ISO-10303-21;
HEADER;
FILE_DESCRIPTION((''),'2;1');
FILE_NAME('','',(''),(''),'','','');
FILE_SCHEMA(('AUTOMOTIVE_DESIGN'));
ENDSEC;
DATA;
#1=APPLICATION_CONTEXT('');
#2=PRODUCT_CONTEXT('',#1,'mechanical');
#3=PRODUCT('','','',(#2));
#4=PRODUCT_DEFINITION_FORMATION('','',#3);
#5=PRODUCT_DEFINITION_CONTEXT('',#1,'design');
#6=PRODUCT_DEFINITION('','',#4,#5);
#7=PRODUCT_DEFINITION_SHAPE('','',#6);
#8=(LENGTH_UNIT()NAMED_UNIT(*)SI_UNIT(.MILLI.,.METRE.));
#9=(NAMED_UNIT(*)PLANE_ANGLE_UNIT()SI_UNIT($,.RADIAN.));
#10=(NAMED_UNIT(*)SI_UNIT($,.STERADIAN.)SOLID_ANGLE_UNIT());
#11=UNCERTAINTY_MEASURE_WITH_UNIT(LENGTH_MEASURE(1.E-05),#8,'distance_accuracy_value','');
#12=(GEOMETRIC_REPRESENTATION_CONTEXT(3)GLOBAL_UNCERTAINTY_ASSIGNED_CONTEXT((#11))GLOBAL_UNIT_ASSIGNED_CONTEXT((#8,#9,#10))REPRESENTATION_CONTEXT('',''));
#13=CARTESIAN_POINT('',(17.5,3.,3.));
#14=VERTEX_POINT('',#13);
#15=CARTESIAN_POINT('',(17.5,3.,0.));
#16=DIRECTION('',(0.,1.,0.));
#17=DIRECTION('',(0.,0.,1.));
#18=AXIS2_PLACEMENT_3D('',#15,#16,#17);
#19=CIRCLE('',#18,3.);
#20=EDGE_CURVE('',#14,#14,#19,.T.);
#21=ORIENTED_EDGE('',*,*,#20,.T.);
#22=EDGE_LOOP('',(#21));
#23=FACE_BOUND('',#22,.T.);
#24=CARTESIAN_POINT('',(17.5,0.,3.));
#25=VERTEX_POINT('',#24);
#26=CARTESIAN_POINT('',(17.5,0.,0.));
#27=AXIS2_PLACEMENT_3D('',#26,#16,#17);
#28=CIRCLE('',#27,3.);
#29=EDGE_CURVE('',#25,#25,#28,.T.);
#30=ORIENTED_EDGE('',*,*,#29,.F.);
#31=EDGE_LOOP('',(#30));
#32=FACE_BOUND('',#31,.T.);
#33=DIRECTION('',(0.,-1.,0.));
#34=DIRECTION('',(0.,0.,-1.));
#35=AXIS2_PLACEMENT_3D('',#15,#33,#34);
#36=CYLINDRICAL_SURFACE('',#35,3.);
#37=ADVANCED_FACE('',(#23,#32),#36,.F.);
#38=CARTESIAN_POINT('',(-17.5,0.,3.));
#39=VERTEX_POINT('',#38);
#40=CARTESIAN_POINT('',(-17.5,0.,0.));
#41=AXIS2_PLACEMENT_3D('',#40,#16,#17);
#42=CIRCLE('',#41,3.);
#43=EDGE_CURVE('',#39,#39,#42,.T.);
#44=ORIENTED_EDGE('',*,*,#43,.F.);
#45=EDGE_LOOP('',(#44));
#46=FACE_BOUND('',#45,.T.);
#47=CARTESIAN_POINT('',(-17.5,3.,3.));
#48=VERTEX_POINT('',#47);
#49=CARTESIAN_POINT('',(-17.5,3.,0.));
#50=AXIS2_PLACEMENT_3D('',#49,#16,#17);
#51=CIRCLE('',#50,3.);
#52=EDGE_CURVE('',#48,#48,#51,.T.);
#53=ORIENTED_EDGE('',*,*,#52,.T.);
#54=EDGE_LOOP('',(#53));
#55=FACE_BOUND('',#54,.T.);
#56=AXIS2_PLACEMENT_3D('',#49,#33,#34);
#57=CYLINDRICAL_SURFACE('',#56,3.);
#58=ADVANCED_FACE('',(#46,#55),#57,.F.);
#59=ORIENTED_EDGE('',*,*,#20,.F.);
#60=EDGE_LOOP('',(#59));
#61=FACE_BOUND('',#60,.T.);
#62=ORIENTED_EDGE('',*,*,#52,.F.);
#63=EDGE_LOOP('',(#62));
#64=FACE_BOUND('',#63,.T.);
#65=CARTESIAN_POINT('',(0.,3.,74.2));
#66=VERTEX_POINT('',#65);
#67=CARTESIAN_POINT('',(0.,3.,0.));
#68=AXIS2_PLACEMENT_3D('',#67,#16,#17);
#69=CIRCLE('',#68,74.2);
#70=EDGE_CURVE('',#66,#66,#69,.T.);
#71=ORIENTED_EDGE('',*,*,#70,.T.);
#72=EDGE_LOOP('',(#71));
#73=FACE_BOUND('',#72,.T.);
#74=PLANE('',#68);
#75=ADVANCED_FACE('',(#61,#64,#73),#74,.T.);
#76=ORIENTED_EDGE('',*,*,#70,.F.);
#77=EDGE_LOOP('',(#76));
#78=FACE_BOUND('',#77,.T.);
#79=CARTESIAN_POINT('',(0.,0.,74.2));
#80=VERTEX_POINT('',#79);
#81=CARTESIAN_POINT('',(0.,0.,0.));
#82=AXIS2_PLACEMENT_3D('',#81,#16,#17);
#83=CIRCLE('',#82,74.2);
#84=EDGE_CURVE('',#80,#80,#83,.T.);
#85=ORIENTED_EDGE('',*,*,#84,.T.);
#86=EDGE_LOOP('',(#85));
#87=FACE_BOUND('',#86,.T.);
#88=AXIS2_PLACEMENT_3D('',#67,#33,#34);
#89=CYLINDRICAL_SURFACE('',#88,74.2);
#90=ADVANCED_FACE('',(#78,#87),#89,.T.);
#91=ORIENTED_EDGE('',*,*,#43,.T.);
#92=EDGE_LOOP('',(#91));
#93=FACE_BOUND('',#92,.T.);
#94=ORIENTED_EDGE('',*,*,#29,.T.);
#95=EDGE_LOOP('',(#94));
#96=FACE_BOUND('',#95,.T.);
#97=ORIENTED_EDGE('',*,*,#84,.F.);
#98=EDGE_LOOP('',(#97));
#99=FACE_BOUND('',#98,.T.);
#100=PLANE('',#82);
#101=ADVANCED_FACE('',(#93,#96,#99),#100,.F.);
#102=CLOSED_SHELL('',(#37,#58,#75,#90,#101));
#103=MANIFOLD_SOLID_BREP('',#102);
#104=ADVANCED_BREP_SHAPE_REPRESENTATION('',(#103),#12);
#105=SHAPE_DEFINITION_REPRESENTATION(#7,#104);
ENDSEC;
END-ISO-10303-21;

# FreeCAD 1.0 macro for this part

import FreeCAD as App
import Part
import Sketcher
from FreeCAD import Vector

doc = App.newDocument("Part")
body = doc.addObject("PartDesign::Body", "Body")

sketch1 = doc.addObject("Sketcher::SketchObject", "Sketch")
body.addObject(sketch1)
sketch1.AttachmentSupport = (doc.XZ_Plane, [""])
sketch1.MapMode = "FlatFace"
sketch1.addGeometry(Part.Circle(Vector(0, 0, 0), Vector(0, 0, 1), 74.2), False)
sketch1.addGeometry(Part.Circle(Vector(-17.5, 0, 0), Vector(0, 0, 1), 3), False)
sketch1.addGeometry(Part.Circle(Vector(17.5, 0, 0), Vector(0, 0, 1), 3), False)
sketch1.addConstraint(Sketcher.Constraint("Coincident", 0, 3, -1, 1))
sketch1.addConstraint(Sketcher.Constraint("Equal", 1, 2))
sketch1.addConstraint(Sketcher.Constraint("Symmetric", 1, 3, 2, 3, -1, 1))
sketch1.addConstraint(Sketcher.Constraint("PointOnObject", 1, 3, -1))
sketch1.addConstraint(Sketcher.Constraint("Diameter", 1, 6.0))
sketch1.addConstraint(Sketcher.Constraint("Diameter", 0, 148.4))
sketch1.addConstraint(Sketcher.Constraint("DistanceX", 1, 3, 2, 3, 35.0))
pad1 = doc.addObject("PartDesign::Pad", "Pad")
body.addObject(pad1)
pad1.Profile = sketch1
pad1.Length = 3
pad1.Reversed = True

doc.recompute()
